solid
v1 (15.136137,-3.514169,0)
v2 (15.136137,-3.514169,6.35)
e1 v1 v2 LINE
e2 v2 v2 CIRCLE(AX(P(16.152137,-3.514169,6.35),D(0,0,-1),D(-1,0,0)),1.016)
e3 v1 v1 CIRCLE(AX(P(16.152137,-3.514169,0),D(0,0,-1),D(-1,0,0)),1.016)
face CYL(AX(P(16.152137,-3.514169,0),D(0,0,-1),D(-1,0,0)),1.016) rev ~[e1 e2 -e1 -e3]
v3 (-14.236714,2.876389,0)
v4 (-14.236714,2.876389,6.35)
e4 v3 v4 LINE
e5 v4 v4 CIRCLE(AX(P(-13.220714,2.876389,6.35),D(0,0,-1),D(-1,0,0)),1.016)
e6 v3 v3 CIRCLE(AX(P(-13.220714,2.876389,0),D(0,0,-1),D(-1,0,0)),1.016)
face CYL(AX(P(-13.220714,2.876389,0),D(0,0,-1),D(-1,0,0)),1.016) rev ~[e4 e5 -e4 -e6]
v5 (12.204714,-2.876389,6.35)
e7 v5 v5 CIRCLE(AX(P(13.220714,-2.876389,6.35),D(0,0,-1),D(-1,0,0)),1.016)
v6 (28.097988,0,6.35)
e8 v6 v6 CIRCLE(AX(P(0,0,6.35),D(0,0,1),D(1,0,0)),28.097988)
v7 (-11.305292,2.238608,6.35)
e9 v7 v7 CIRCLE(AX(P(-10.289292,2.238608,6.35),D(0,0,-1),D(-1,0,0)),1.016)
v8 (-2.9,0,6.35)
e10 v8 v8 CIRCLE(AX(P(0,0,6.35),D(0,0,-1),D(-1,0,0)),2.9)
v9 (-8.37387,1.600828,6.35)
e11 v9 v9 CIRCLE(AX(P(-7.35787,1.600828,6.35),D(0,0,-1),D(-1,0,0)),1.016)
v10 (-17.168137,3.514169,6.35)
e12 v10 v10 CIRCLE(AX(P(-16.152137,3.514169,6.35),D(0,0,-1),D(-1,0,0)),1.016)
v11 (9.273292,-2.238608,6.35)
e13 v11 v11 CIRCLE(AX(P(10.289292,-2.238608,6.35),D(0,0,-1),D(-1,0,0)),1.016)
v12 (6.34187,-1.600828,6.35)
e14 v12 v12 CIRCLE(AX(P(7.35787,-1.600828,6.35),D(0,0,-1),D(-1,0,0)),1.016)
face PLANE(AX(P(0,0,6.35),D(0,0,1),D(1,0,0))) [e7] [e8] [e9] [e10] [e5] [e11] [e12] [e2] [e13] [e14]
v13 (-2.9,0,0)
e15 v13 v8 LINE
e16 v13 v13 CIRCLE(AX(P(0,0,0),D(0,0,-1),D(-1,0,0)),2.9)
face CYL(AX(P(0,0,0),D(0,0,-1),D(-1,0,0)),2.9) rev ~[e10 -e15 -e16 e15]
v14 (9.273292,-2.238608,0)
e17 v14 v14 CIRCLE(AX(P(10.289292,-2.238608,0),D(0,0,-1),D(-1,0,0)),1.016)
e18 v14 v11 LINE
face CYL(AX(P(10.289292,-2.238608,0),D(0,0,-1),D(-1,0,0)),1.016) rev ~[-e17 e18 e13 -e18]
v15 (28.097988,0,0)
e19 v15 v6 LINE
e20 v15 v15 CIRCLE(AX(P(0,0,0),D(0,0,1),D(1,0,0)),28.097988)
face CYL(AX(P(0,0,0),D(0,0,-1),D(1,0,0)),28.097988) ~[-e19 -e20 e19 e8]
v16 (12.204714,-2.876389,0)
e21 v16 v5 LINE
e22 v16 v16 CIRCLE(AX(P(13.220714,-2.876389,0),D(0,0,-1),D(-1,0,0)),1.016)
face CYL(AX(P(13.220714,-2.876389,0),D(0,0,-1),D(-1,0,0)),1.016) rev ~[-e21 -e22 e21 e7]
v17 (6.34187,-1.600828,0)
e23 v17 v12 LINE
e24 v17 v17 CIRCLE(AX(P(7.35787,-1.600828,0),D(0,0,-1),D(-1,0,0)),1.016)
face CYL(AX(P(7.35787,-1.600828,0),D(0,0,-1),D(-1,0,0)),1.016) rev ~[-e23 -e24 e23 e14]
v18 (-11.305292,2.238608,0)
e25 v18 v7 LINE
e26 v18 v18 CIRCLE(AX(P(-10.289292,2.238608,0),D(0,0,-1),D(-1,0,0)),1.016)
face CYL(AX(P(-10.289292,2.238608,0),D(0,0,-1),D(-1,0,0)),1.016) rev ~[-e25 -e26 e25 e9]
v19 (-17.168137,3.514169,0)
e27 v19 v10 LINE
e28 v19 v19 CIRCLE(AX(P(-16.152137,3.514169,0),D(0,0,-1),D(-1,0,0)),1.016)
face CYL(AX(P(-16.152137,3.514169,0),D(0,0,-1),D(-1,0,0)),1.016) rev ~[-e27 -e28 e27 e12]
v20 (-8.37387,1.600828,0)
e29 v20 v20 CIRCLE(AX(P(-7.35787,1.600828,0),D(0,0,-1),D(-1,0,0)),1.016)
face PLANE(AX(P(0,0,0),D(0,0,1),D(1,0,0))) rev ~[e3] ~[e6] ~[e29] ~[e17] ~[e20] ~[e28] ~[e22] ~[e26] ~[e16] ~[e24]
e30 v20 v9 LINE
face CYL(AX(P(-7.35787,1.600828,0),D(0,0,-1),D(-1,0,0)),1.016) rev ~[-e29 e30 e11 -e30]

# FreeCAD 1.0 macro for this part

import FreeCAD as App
import Part
import Sketcher
from FreeCAD import Vector
Q = App.Units.Quantity

doc = App.newDocument("Part")
body = doc.addObject("PartDesign::Body", "Body")

# Sketch on XY plane
sketch1 = body.newObject("Sketcher::SketchObject", "Sketch")
sketch1.AttachmentSupport = (doc.getObject("XY_Plane"), [""])
sketch1.MapMode = "FlatFace"
sketch1.addGeometry(Part.Circle(Vector(0, 0, 0), Vector(0, 0, 1), 28), False)
sketch1.addConstraint([
    Sketcher.Constraint("Coincident", 0, 3, -1, 1),
    Sketcher.Constraint("Diameter", 0, 56.195976),
])
pad1 = body.newObject("PartDesign::Pad", "Pad")
pad1.Profile = sketch1
pad1.Length = Q("0.25 in")

# Sketch on XY plane
sketch2 = body.newObject("Sketcher::SketchObject", "Sketch001")
sketch2.AttachmentSupport = (doc.getObject("XY_Plane"), [""])
sketch2.MapMode = "FlatFace"
sketch2.addGeometry([
    Part.Circle(Vector(13.2, -2.9, 0), Vector(0, 0, 1), 1),  # 0
    Part.Circle(Vector(16.2, -3.5, 0), Vector(0, 0, 1), 1),  # 1
    Part.Circle(Vector(10.3, -2.2, 0), Vector(0, 0, 1), 1),  # 2
    Part.Circle(Vector(7.4, -1.6, 0), Vector(0, 0, 1), 1),  # 3
    Part.Circle(Vector(-7.4, 1.6, 0), Vector(0, 0, 1), 1),  # 4
    Part.Circle(Vector(-10.3, 2.2, 0), Vector(0, 0, 1), 1),  # 5
    Part.Circle(Vector(-13.2, 2.9, 0), Vector(0, 0, 1), 1),  # 6
    Part.Circle(Vector(-16.2, 3.5, 0), Vector(0, 0, 1), 1),  # 7
    Part.Circle(Vector(0, 0, 0), Vector(0, 0, 1), 2.9),  # 8
], False)
sketch2.addConstraint([
    Sketcher.Constraint("Coincident", 8, 3, -1, 1),
    Sketcher.Constraint("Equal", 0, 1),
    Sketcher.Constraint("Equal", 1, 2),
    Sketcher.Constraint("Equal", 2, 3),
    Sketcher.Constraint("Equal", 3, 4),
    Sketcher.Constraint("Equal", 4, 5),
    Sketcher.Constraint("Equal", 5, 6),
    Sketcher.Constraint("Equal", 6, 7),
    Sketcher.Constraint("Symmetric", 3, 3, 4, 3, -1, 1),
    Sketcher.Constraint("Symmetric", 2, 3, 5, 3, -1, 1),
    Sketcher.Constraint("Symmetric", 0, 3, 6, 3, -1, 1),
    Sketcher.Constraint("Symmetric", 1, 3, 7, 3, -1, 1),
    Sketcher.Constraint("Diameter", 0, Q("0.08 in")),
    Sketcher.Constraint("Diameter", 8, 5.8),
    Sketcher.Constraint("DistanceY", 0, 3, -1, 1, 2.876389),
    Sketcher.Constraint("DistanceY", 1, 3, -1, 1, 3.514169),
    Sketcher.Constraint("DistanceY", 2, 3, -1, 1, 2.238608),
    Sketcher.Constraint("DistanceX", -1, 1, 3, 3, 7.35787),
    Sketcher.Constraint("DistanceY", 3, 3, -1, 1, 1.600828),
    Sketcher.Constraint("DistanceX", 4, 3, 2, 3, 17.647162),
    Sketcher.Constraint("DistanceX", 5, 3, 1, 3, 26.441429),
    Sketcher.Constraint("DistanceX", 6, 3, 0, 3, 26.441429),
])
pocket1 = body.newObject("PartDesign::Pocket", "Pocket")
pocket1.Profile = sketch2
pocket1.Length = Q("0.25 in")
pocket1.Reversed = True

doc.recompute()
